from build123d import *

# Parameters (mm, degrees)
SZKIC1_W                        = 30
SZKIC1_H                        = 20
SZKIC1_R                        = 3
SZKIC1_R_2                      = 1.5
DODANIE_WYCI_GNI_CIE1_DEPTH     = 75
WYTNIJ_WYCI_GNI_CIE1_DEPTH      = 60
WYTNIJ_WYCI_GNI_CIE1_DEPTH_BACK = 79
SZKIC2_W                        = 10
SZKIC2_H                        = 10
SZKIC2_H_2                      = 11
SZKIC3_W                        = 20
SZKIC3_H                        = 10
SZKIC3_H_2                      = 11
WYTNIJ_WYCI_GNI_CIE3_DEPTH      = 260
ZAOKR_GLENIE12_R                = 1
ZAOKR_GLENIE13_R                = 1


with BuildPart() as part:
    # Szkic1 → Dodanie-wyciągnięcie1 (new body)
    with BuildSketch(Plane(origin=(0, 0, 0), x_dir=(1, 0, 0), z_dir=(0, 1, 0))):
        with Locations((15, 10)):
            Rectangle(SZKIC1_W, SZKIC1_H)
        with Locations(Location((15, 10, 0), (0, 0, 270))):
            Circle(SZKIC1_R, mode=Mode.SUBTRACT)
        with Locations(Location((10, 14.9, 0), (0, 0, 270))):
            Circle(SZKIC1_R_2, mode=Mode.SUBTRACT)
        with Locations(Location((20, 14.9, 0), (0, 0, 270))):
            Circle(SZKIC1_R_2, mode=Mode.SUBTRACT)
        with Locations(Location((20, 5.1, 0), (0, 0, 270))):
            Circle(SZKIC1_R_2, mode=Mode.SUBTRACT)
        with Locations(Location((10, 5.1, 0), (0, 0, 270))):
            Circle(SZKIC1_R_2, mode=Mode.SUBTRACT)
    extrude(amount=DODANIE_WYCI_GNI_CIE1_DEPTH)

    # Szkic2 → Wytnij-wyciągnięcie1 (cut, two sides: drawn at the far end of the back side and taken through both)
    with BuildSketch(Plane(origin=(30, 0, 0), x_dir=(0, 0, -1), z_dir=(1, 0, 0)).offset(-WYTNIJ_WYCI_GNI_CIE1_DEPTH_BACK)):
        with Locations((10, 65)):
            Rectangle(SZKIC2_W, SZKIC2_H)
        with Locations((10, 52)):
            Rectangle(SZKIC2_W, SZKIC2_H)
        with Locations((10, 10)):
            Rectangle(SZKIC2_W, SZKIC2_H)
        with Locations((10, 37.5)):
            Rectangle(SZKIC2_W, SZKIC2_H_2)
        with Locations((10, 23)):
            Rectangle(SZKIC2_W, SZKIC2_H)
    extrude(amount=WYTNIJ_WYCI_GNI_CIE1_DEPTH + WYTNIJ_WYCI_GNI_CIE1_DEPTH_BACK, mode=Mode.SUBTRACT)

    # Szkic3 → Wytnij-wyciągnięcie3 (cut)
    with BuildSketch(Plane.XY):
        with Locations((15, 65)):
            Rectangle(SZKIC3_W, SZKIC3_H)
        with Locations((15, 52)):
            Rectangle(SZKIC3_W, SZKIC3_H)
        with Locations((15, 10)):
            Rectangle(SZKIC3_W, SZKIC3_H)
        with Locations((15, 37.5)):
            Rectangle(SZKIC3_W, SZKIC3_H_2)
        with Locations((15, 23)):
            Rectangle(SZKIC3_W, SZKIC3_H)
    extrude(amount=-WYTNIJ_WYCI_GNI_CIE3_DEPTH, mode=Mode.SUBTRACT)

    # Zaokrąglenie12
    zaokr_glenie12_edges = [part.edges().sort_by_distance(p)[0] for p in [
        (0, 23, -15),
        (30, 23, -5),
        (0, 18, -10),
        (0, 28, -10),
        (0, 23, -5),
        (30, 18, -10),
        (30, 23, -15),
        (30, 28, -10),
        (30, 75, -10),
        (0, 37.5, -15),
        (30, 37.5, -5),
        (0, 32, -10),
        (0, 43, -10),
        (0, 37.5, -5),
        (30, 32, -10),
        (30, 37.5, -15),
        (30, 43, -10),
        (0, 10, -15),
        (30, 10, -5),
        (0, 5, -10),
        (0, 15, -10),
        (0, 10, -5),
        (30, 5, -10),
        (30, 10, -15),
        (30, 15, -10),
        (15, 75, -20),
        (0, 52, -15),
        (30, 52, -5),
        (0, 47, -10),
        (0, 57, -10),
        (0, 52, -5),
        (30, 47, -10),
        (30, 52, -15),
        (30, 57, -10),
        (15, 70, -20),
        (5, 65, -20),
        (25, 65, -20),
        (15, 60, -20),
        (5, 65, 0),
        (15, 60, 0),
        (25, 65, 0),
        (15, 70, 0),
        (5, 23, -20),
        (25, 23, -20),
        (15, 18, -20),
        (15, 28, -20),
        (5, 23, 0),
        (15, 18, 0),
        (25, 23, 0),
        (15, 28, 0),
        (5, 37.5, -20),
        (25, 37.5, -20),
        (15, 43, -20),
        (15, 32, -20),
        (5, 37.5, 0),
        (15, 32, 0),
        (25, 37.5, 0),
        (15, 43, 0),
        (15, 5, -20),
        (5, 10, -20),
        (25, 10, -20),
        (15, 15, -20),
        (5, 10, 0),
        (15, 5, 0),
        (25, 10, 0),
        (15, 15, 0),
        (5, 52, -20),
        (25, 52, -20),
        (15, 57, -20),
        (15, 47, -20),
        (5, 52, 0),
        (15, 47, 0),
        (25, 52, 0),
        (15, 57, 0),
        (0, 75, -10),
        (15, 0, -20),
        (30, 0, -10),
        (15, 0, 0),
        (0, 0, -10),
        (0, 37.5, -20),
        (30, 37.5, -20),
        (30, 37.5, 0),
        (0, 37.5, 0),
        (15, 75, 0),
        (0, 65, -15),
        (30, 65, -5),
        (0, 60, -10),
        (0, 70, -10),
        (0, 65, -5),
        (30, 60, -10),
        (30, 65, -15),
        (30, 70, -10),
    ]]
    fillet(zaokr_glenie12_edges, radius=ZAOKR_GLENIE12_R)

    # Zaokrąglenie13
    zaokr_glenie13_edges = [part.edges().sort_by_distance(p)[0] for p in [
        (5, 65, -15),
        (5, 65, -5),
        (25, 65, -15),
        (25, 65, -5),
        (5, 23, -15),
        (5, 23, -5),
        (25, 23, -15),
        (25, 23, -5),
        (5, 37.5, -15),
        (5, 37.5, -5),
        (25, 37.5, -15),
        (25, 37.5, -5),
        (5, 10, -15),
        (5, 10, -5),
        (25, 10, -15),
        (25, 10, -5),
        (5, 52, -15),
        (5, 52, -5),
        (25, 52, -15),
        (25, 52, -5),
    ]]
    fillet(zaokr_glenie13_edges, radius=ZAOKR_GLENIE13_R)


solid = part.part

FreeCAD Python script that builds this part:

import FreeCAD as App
import Part
import Sketcher

V = App.Vector


def edges_at(feature, points):
    """Names of the edges that pass closest to the given points."""
    edges = feature.Shape.Edges
    near = lambda p: min(range(len(edges)), key=lambda i: edges[i].distToShape(Part.Vertex(*p))[0])
    return sorted({f"Edge{near(p) + 1}" for p in points})

doc = App.newDocument("Part")
body = doc.addObject("PartDesign::Body", "Body")

sketch1 = body.newObject("Sketcher::SketchObject", "Sketch")
sketch1.AttachmentSupport = (doc.getObject("XZ_Plane"), [""])
sketch1.MapMode = "FlatFace"
sketch1.addGeometry(Part.LineSegment(V(0, -20, 0), V(0, 0, 0)), False)
sketch1.addGeometry(Part.LineSegment(V(0, 0, 0), V(30, 0, 0)), False)
sketch1.addGeometry(Part.LineSegment(V(30, 0, 0), V(30, -20, 0)), False)
sketch1.addGeometry(Part.LineSegment(V(30, -20, 0), V(0, -20, 0)), False)
sketch1.addGeometry(Part.Circle(V(10, -5.1, 0), V(0, 0, 1), 1.5), False)
sketch1.addGeometry(Part.Circle(V(20, -5.1, 0), V(0, 0, 1), 1.5), False)
sketch1.addGeometry(Part.Circle(V(10, -14.9, 0), V(0, 0, 1), 1.5), False)
sketch1.addGeometry(Part.Circle(V(15, -10, 0), V(0, 0, 1), 3), False)
sketch1.addGeometry(Part.Circle(V(20, -14.9, 0), V(0, 0, 1), 1.5), False)
sketch1.addConstraint(Sketcher.Constraint("Coincident", 0, 2, 1, 1))
sketch1.addConstraint(Sketcher.Constraint("Coincident", 1, 2, 2, 1))
sketch1.addConstraint(Sketcher.Constraint("Coincident", 2, 2, 3, 1))
sketch1.addConstraint(Sketcher.Constraint("Coincident", 3, 2, 0, 1))
sketch1.addConstraint(Sketcher.Constraint("Vertical", 0))
sketch1.addConstraint(Sketcher.Constraint("Horizontal", 1))
sketch1.addConstraint(Sketcher.Constraint("Vertical", 2))
sketch1.addConstraint(Sketcher.Constraint("Horizontal", 3))
sketch1.addConstraint(Sketcher.Constraint("Coincident", 0, 2, -1, 1))
sketch1.addConstraint(Sketcher.Constraint("Equal", 4, 5))
sketch1.addConstraint(Sketcher.Constraint("Equal", 5, 6))
sketch1.addConstraint(Sketcher.Constraint("Equal", 6, 8))
sketch1.addConstraint(Sketcher.Constraint("Horizontal", 4, 3, 5, 3))
sketch1.addConstraint(Sketcher.Constraint("Horizontal", 6, 3, 8, 3))
sketch1.addConstraint(Sketcher.Constraint("Vertical", 4, 3, 6, 3))
sketch1.addConstraint(Sketcher.Constraint("Vertical", 5, 3, 8, 3))
sketch1.addConstraint(Sketcher.Constraint("Diameter", 4, 3.0))
sketch1.addConstraint(Sketcher.Constraint("Diameter", 7, 6.0))
sketch1.addConstraint(Sketcher.Constraint("DistanceX", 1, 1, 1, 2, 30.0))
sketch1.addConstraint(Sketcher.Constraint("DistanceY", 0, 1, 0, 2, 20.0))
sketch1.addConstraint(Sketcher.Constraint("DistanceX", -1, 1, 4, 3, 10.0))
sketch1.addConstraint(Sketcher.Constraint("DistanceX", -1, 1, 5, 3, 20.0))
sketch1.addConstraint(Sketcher.Constraint("DistanceX", -1, 1, 7, 3, 15.0))
sketch1.addConstraint(Sketcher.Constraint("DistanceY", 7, 3, -1, 1, 10.0))
sketch1.addConstraint(Sketcher.Constraint("DistanceY", 4, 3, -1, 1, 5.1))
sketch1.addConstraint(Sketcher.Constraint("DistanceY", 6, 3, -1, 1, 14.9))
pad1 = body.newObject("PartDesign::Pad", "Pad")
pad1.Profile = sketch1
pad1.Length = 75
pad1.Reversed = True

sketch2 = body.newObject("Sketcher::SketchObject", "Sketch001")
sketch2.AttachmentSupport = (doc.getObject("YZ_Plane"), [""])
sketch2.MapMode = "FlatFace"
sketch2.AttachmentOffset = App.Placement(V(0, 0, 30), App.Rotation())
sketch2.addGeometry(Part.LineSegment(V(70, -5, 0), V(60, -5, 0)), False)
sketch2.addGeometry(Part.LineSegment(V(60, -5, 0), V(60, -15, 0)), False)
sketch2.addGeometry(Part.LineSegment(V(60, -15, 0), V(70, -15, 0)), False)
sketch2.addGeometry(Part.LineSegment(V(70, -15, 0), V(70, -5, 0)), False)
sketch2.addGeometry(Part.LineSegment(V(57, -5, 0), V(47, -5, 0)), False)
sketch2.addGeometry(Part.LineSegment(V(47, -5, 0), V(47, -15, 0)), False)
sketch2.addGeometry(Part.LineSegment(V(47, -15, 0), V(57, -15, 0)), False)
sketch2.addGeometry(Part.LineSegment(V(57, -15, 0), V(57, -5, 0)), False)
sketch2.addGeometry(Part.LineSegment(V(15, -5, 0), V(5, -5, 0)), False)
sketch2.addGeometry(Part.LineSegment(V(5, -5, 0), V(5, -15, 0)), False)
sketch2.addGeometry(Part.LineSegment(V(5, -15, 0), V(15, -15, 0)), False)
sketch2.addGeometry(Part.LineSegment(V(15, -15, 0), V(15, -5, 0)), False)
sketch2.addGeometry(Part.LineSegment(V(43, -5, 0), V(32, -5, 0)), False)
sketch2.addGeometry(Part.LineSegment(V(32, -5, 0), V(32, -15, 0)), False)
sketch2.addGeometry(Part.LineSegment(V(32, -15, 0), V(43, -15, 0)), False)
sketch2.addGeometry(Part.LineSegment(V(43, -15, 0), V(43, -5, 0)), False)
sketch2.addGeometry(Part.LineSegment(V(28, -5, 0), V(18, -5, 0)), False)
sketch2.addGeometry(Part.LineSegment(V(18, -5, 0), V(18, -15, 0)), False)
sketch2.addGeometry(Part.LineSegment(V(18, -15, 0), V(28, -15, 0)), False)
sketch2.addGeometry(Part.LineSegment(V(28, -15, 0), V(28, -5, 0)), False)
sketch2.addConstraint(Sketcher.Constraint("Coincident", 0, 2, 1, 1))
sketch2.addConstraint(Sketcher.Constraint("Coincident", 1, 2, 2, 1))
sketch2.addConstraint(Sketcher.Constraint("Coincident", 2, 2, 3, 1))
sketch2.addConstraint(Sketcher.Constraint("Coincident", 3, 2, 0, 1))
sketch2.addConstraint(Sketcher.Constraint("Coincident", 4, 2, 5, 1))
sketch2.addConstraint(Sketcher.Constraint("Coincident", 5, 2, 6, 1))
sketch2.addConstraint(Sketcher.Constraint("Coincident", 6, 2, 7, 1))
sketch2.addConstraint(Sketcher.Constraint("Coincident", 7, 2, 4, 1))
sketch2.addConstraint(Sketcher.Constraint("Coincident", 8, 2, 9, 1))
sketch2.addConstraint(Sketcher.Constraint("Coincident", 9, 2, 10, 1))
sketch2.addConstraint(Sketcher.Constraint("Coincident", 10, 2, 11, 1))
sketch2.addConstraint(Sketcher.Constraint("Coincident", 11, 2, 8, 1))
sketch2.addConstraint(Sketcher.Constraint("Coincident", 12, 2, 13, 1))
sketch2.addConstraint(Sketcher.Constraint("Coincident", 13, 2, 14, 1))
sketch2.addConstraint(Sketcher.Constraint("Coincident", 14, 2, 15, 1))
sketch2.addConstraint(Sketcher.Constraint("Coincident", 15, 2, 12, 1))
sketch2.addConstraint(Sketcher.Constraint("Coincident", 16, 2, 17, 1))
sketch2.addConstraint(Sketcher.Constraint("Coincident", 17, 2, 18, 1))
sketch2.addConstraint(Sketcher.Constraint("Coincident", 18, 2, 19, 1))
sketch2.addConstraint(Sketcher.Constraint("Coincident", 19, 2, 16, 1))
sketch2.addConstraint(Sketcher.Constraint("Horizontal", 0))
sketch2.addConstraint(Sketcher.Constraint("Vertical", 1))
sketch2.addConstraint(Sketcher.Constraint("Horizontal", 2))
sketch2.addConstraint(Sketcher.Constraint("Vertical", 3))
sketch2.addConstraint(Sketcher.Constraint("Horizontal", 4))
sketch2.addConstraint(Sketcher.Constraint("Vertical", 5))
sketch2.addConstraint(Sketcher.Constraint("Horizontal", 6))
sketch2.addConstraint(Sketcher.Constraint("Vertical", 7))
sketch2.addConstraint(Sketcher.Constraint("Horizontal", 8))
sketch2.addConstraint(Sketcher.Constraint("Vertical", 9))
sketch2.addConstraint(Sketcher.Constraint("Horizontal", 10))
sketch2.addConstraint(Sketcher.Constraint("Vertical", 11))
sketch2.addConstraint(Sketcher.Constraint("Horizontal", 12))
sketch2.addConstraint(Sketcher.Constraint("Vertical", 13))
sketch2.addConstraint(Sketcher.Constraint("Horizontal", 14))
sketch2.addConstraint(Sketcher.Constraint("Vertical", 15))
sketch2.addConstraint(Sketcher.Constraint("Horizontal", 16))
sketch2.addConstraint(Sketcher.Constraint("Vertical", 17))
sketch2.addConstraint(Sketcher.Constraint("Horizontal", 18))
sketch2.addConstraint(Sketcher.Constraint("Vertical", 19))
sketch2.addConstraint(Sketcher.Constraint("Horizontal", 3, 2, 4, 2))
sketch2.addConstraint(Sketcher.Constraint("Horizontal", 2, 2, 5, 2))
sketch2.addConstraint(Sketcher.Constraint("Horizontal", 7, 2, 8, 2))
sketch2.addConstraint(Sketcher.Constraint("Horizontal", 6, 2, 9, 2))
sketch2.addConstraint(Sketcher.Constraint("Horizontal", 11, 2, 12, 2))
sketch2.addConstraint(Sketcher.Constraint("Horizontal", 10, 2, 13, 2))
sketch2.addConstraint(Sketcher.Constraint("Horizontal", 15, 2, 16, 2))
sketch2.addConstraint(Sketcher.Constraint("Horizontal", 14, 2, 17, 2))
sketch2.addConstraint(Sketcher.Constraint("Equal", 2, 4))
sketch2.addConstraint(Sketcher.Constraint("Equal", 6, 8))
sketch2.addConstraint(Sketcher.Constraint("Equal", 10, 16))
sketch2.addConstraint(Sketcher.Constraint("Equal", 18, 1))
sketch2.addConstraint(Sketcher.Constraint("DistanceX", 0, 2, 0, 1, 10.0))
sketch2.addConstraint(Sketcher.Constraint("DistanceX", 12, 2, 12, 1, 11.0))
sketch2.addConstraint(Sketcher.Constraint("DistanceX", -1, 1, 0, 2, 60.0))
sketch2.addConstraint(Sketcher.Constraint("DistanceY", 0, 2, -1, 1, 5.0))
sketch2.addConstraint(Sketcher.Constraint("DistanceX", -1, 1, 4, 2, 47.0))
sketch2.addConstraint(Sketcher.Constraint("DistanceX", -1, 1, 8, 2, 5.0))
sketch2.addConstraint(Sketcher.Constraint("DistanceX", -1, 1, 12, 2, 32.0))
sketch2.addConstraint(Sketcher.Constraint("DistanceX", -1, 1, 16, 2, 18.0))
pocket1 = body.newObject("PartDesign::Pocket", "Pocket")
pocket1.Profile = sketch2
pocket1.Type = "ThroughAll"
pocket1.Midplane = True

sketch3 = body.newObject("Sketcher::SketchObject", "Sketch002")
sketch3.AttachmentSupport = (doc.getObject("XY_Plane"), [""])
sketch3.MapMode = "FlatFace"
sketch3.addGeometry(Part.LineSegment(V(5, 70, 0), V(5, 60, 0)), False)
sketch3.addGeometry(Part.LineSegment(V(5, 60, 0), V(25, 60, 0)), False)
sketch3.addGeometry(Part.LineSegment(V(25, 60, 0), V(25, 70, 0)), False)
sketch3.addGeometry(Part.LineSegment(V(25, 70, 0), V(5, 70, 0)), False)
sketch3.addGeometry(Part.LineSegment(V(5, 57, 0), V(5, 47, 0)), False)
sketch3.addGeometry(Part.LineSegment(V(5, 47, 0), V(25, 47, 0)), False)
sketch3.addGeometry(Part.LineSegment(V(25, 47, 0), V(25, 57, 0)), False)
sketch3.addGeometry(Part.LineSegment(V(25, 57, 0), V(5, 57, 0)), False)
sketch3.addGeometry(Part.LineSegment(V(5, 15, 0), V(5, 5, 0)), False)
sketch3.addGeometry(Part.LineSegment(V(5, 5, 0), V(25, 5, 0)), False)
sketch3.addGeometry(Part.LineSegment(V(25, 5, 0), V(25, 15, 0)), False)
sketch3.addGeometry(Part.LineSegment(V(25, 15, 0), V(5, 15, 0)), False)
sketch3.addGeometry(Part.LineSegment(V(5, 43, 0), V(5, 32, 0)), False)
sketch3.addGeometry(Part.LineSegment(V(5, 32, 0), V(25, 32, 0)), False)
sketch3.addGeometry(Part.LineSegment(V(25, 32, 0), V(25, 43, 0)), False)
sketch3.addGeometry(Part.LineSegment(V(25, 43, 0), V(5, 43, 0)), False)
sketch3.addGeometry(Part.LineSegment(V(5, 28, 0), V(5, 18, 0)), False)
sketch3.addGeometry(Part.LineSegment(V(5, 18, 0), V(25, 18, 0)), False)
sketch3.addGeometry(Part.LineSegment(V(25, 18, 0), V(25, 28, 0)), False)
sketch3.addGeometry(Part.LineSegment(V(25, 28, 0), V(5, 28, 0)), False)
sketch3.addConstraint(Sketcher.Constraint("Coincident", 0, 2, 1, 1))
sketch3.addConstraint(Sketcher.Constraint("Coincident", 1, 2, 2, 1))
sketch3.addConstraint(Sketcher.Constraint("Coincident", 2, 2, 3, 1))
sketch3.addConstraint(Sketcher.Constraint("Coincident", 3, 2, 0, 1))
sketch3.addConstraint(Sketcher.Constraint("Coincident", 4, 2, 5, 1))
sketch3.addConstraint(Sketcher.Constraint("Coincident", 5, 2, 6, 1))
sketch3.addConstraint(Sketcher.Constraint("Coincident", 6, 2, 7, 1))
sketch3.addConstraint(Sketcher.Constraint("Coincident", 7, 2, 4, 1))
sketch3.addConstraint(Sketcher.Constraint("Coincident", 8, 2, 9, 1))
sketch3.addConstraint(Sketcher.Constraint("Coincident", 9, 2, 10, 1))
sketch3.addConstraint(Sketcher.Constraint("Coincident", 10, 2, 11, 1))
sketch3.addConstraint(Sketcher.Constraint("Coincident", 11, 2, 8, 1))
sketch3.addConstraint(Sketcher.Constraint("Coincident", 12, 2, 13, 1))
sketch3.addConstraint(Sketcher.Constraint("Coincident", 13, 2, 14, 1))
sketch3.addConstraint(Sketcher.Constraint("Coincident", 14, 2, 15, 1))
sketch3.addConstraint(Sketcher.Constraint("Coincident", 15, 2, 12, 1))
sketch3.addConstraint(Sketcher.Constraint("Coincident", 16, 2, 17, 1))
sketch3.addConstraint(Sketcher.Constraint("Coincident", 17, 2, 18, 1))
sketch3.addConstraint(Sketcher.Constraint("Coincident", 18, 2, 19, 1))
sketch3.addConstraint(Sketcher.Constraint("Coincident", 19, 2, 16, 1))
sketch3.addConstraint(Sketcher.Constraint("Vertical", 0))
sketch3.addConstraint(Sketcher.Constraint("Horizontal", 1))
sketch3.addConstraint(Sketcher.Constraint("Vertical", 2))
sketch3.addConstraint(Sketcher.Constraint("Horizontal", 3))
sketch3.addConstraint(Sketcher.Constraint("Vertical", 4))
sketch3.addConstraint(Sketcher.Constraint("Horizontal", 5))
sketch3.addConstraint(Sketcher.Constraint("Vertical", 6))
sketch3.addConstraint(Sketcher.Constraint("Horizontal", 7))
sketch3.addConstraint(Sketcher.Constraint("Vertical", 8))
sketch3.addConstraint(Sketcher.Constraint("Horizontal", 9))
sketch3.addConstraint(Sketcher.Constraint("Vertical", 10))
sketch3.addConstraint(Sketcher.Constraint("Horizontal", 11))
sketch3.addConstraint(Sketcher.Constraint("Vertical", 12))
sketch3.addConstraint(Sketcher.Constraint("Horizontal", 13))
sketch3.addConstraint(Sketcher.Constraint("Vertical", 14))
sketch3.addConstraint(Sketcher.Constraint("Horizontal", 15))
sketch3.addConstraint(Sketcher.Constraint("Vertical", 16))
sketch3.addConstraint(Sketcher.Constraint("Horizontal", 17))
sketch3.addConstraint(Sketcher.Constraint("Vertical", 18))
sketch3.addConstraint(Sketcher.Constraint("Horizontal", 19))
sketch3.addConstraint(Sketcher.Constraint("Vertical", 3, 2, 4, 2))
sketch3.addConstraint(Sketcher.Constraint("Vertical", 2, 2, 5, 2))
sketch3.addConstraint(Sketcher.Constraint("Vertical", 7, 2, 8, 2))
sketch3.addConstraint(Sketcher.Constraint("Vertical", 6, 2, 9, 2))
sketch3.addConstraint(Sketcher.Constraint("Vertical", 11, 2, 12, 2))
sketch3.addConstraint(Sketcher.Constraint("Vertical", 10, 2, 13, 2))
sketch3.addConstraint(Sketcher.Constraint("Vertical", 15, 2, 16, 2))
sketch3.addConstraint(Sketcher.Constraint("Vertical", 14, 2, 17, 2))
sketch3.addConstraint(Sketcher.Constraint("Equal", 2, 4))
sketch3.addConstraint(Sketcher.Constraint("Equal", 6, 8))
sketch3.addConstraint(Sketcher.Constraint("Equal", 10, 16))
sketch3.addConstraint(Sketcher.Constraint("DistanceX", 1, 1, 1, 2, 20.0))
sketch3.addConstraint(Sketcher.Constraint("DistanceY", 0, 2, 0, 1, 10.0))
sketch3.addConstraint(Sketcher.Constraint("DistanceY", 12, 2, 12, 1, 11.0))
sketch3.addConstraint(Sketcher.Constraint("DistanceX", -1, 1, 0, 2, 5.0))
sketch3.addConstraint(Sketcher.Constraint("DistanceY", -1, 1, 0, 2, 60.0))
sketch3.addConstraint(Sketcher.Constraint("DistanceY", -1, 1, 4, 2, 47.0))
sketch3.addConstraint(Sketcher.Constraint("DistanceY", -1, 1, 8, 2, 5.0))
sketch3.addConstraint(Sketcher.Constraint("DistanceY", -1, 1, 12, 2, 32.0))
sketch3.addConstraint(Sketcher.Constraint("DistanceY", -1, 1, 16, 2, 18.0))
pocket2 = body.newObject("PartDesign::Pocket", "Pocket001")
pocket2.Profile = sketch3
pocket2.Length = 260
doc.recompute()

fillet = body.newObject("PartDesign::Fillet", "Fillet")
fillet.Base = (pocket2, edges_at(pocket2, [
    (0, 23, -15),
    (30, 23, -5),
    (0, 18, -10),
    (0, 28, -10),
    (0, 23, -5),
    (30, 18, -10),
    (30, 23, -15),
    (30, 28, -10),
    (30, 75, -10),
    (0, 37.5, -15),
    (30, 37.5, -5),
    (0, 32, -10),
    (0, 43, -10),
    (0, 37.5, -5),
    (30, 32, -10),
    (30, 37.5, -15),
    (30, 43, -10),
    (0, 10, -15),
    (30, 10, -5),
    (0, 5, -10),
    (0, 15, -10),
    (0, 10, -5),
    (30, 5, -10),
    (30, 10, -15),
    (30, 15, -10),
    (15, 75, -20),
    (0, 52, -15),
    (30, 52, -5),
    (0, 47, -10),
    (0, 57, -10),
    (0, 52, -5),
    (30, 47, -10),
    (30, 52, -15),
    (30, 57, -10),
    (15, 70, -20),
    (5, 65, -20),
    (25, 65, -20),
    (15, 60, -20),
    (5, 65, 0),
    (15, 60, 0),
    (25, 65, 0),
    (15, 70, 0),
    (5, 23, -20),
    (25, 23, -20),
    (15, 18, -20),
    (15, 28, -20),
    (5, 23, 0),
    (15, 18, 0),
    (25, 23, 0),
    (15, 28, 0),
    (5, 37.5, -20),
    (25, 37.5, -20),
    (15, 43, -20),
    (15, 32, -20),
    (5, 37.5, 0),
    (15, 32, 0),
    (25, 37.5, 0),
    (15, 43, 0),
    (15, 5, -20),
    (5, 10, -20),
    (25, 10, -20),
    (15, 15, -20),
    (5, 10, 0),
    (15, 5, 0),
    (25, 10, 0),
    (15, 15, 0),
    (5, 52, -20),
    (25, 52, -20),
    (15, 57, -20),
    (15, 47, -20),
    (5, 52, 0),
    (15, 47, 0),
    (25, 52, 0),
    (15, 57, 0),
    (0, 75, -10),
    (15, 0, -20),
    (30, 0, -10),
    (15, 0, 0),
    (0, 0, -10),
    (0, 37.5, -20),
    (30, 37.5, -20),
    (30, 37.5, 0),
    (0, 37.5, 0),
    (15, 75, 0),
    (0, 65, -15),
    (30, 65, -5),
    (0, 60, -10),
    (0, 70, -10),
    (0, 65, -5),
    (30, 60, -10),
    (30, 65, -15),
    (30, 70, -10),
]))
fillet.Radius = 1
doc.recompute()

fillet2 = body.newObject("PartDesign::Fillet", "Fillet001")
fillet2.Base = (fillet, edges_at(fillet, [
    (5, 65, -15),
    (5, 65, -5),
    (25, 65, -15),
    (25, 65, -5),
    (5, 23, -15),
    (5, 23, -5),
    (25, 23, -15),
    (25, 23, -5),
    (5, 37.5, -15),
    (5, 37.5, -5),
    (25, 37.5, -15),
    (25, 37.5, -5),
    (5, 10, -15),
    (5, 10, -5),
    (25, 10, -15),
    (25, 10, -5),
    (5, 52, -15),
    (5, 52, -5),
    (25, 52, -15),
    (25, 52, -5),
]))
fillet2.Radius = 1

doc.recompute()
